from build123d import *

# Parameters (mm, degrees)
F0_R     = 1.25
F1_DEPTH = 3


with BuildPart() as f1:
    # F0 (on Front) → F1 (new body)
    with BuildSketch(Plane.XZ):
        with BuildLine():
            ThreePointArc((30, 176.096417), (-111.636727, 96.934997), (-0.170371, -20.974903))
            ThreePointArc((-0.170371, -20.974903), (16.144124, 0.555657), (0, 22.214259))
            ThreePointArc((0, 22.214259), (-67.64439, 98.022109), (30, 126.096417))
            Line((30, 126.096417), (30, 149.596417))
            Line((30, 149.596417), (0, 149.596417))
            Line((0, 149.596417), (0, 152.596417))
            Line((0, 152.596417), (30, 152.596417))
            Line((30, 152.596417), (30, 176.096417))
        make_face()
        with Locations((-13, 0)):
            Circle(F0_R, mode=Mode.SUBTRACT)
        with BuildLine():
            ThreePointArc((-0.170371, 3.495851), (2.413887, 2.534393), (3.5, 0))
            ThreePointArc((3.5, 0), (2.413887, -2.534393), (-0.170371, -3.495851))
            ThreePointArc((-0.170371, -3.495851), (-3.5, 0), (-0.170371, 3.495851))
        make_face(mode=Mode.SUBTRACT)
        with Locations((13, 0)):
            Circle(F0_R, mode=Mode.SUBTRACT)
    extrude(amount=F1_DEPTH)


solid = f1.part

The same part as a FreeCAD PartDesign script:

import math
import FreeCAD as App
import Part
import Sketcher
from FreeCAD import Vector
Q = App.Units.Quantity

doc = App.newDocument("Part")
body = doc.addObject("PartDesign::Body", "Body")

# Sketch on XZ plane
sketch1 = doc.addObject("Sketcher::SketchObject", "Sketch")
body.addObject(sketch1)
sketch1.AttachmentSupport = (doc.XZ_Plane, [""])
sketch1.MapMode = "FlatFace"
sketch1.addGeometry([
    Part.ArcOfCircle(Part.Circle(Vector(-10, 81.4, 0), Vector(0, 0, 1), 102.8), math.radians(67), math.radians(275)),  # 0
    Part.ArcOfCircle(Part.Circle(Vector(-6.3, 0.6, 0), Vector(0, 0, 1), 22.5), math.radians(-74), math.radians(74)),  # 1
    Part.ArcOfCircle(Part.Circle(Vector(-10, 81.4, 0), Vector(0, 0, 1), 60), math.radians(48), math.radians(280)),  # 2
    Part.LineSegment(Vector(30, 126.1, 0), Vector(30, 149.6, 0)),  # 3
    Part.LineSegment(Vector(30, 149.6, 0), Vector(0, 149.6, 0)),  # 4
    Part.LineSegment(Vector(0, 149.6, 0), Vector(0, 152.6, 0)),  # 5
    Part.LineSegment(Vector(0, 152.6, 0), Vector(30, 152.6, 0)),  # 6
    Part.LineSegment(Vector(30, 152.6, 0), Vector(30, 176.1, 0)),  # 7
    Part.Circle(Vector(-13, 0, 0), Vector(0, 0, 1), 1.2),  # 8
    Part.ArcOfCircle(Part.Circle(Vector(0, 0, 0), Vector(0, 0, 1), 3.5), math.radians(93), math.radians(267)),  # 9
    Part.ArcOfCircle(Part.Circle(Vector(0, 0, 0), Vector(0, 0, 1), 3.5), math.radians(0), math.radians(93)),  # 10
    Part.ArcOfCircle(Part.Circle(Vector(0, 0, 0), Vector(0, 0, 1), 3.5), math.radians(-93), math.radians(0)),  # 11
    Part.Circle(Vector(13, 0, 0), Vector(0, 0, 1), 1.2),  # 12
], False)
sketch1.addConstraint([
    Sketcher.Constraint("Coincident", 0, 2, 1, 1),
    Sketcher.Constraint("Coincident", 1, 2, 2, 2),
    Sketcher.Constraint("Coincident", 2, 1, 3, 1),
    Sketcher.Constraint("Coincident", 3, 2, 4, 1),
    Sketcher.Constraint("Coincident", 4, 2, 5, 1),
    Sketcher.Constraint("Coincident", 5, 2, 6, 1),
    Sketcher.Constraint("Coincident", 6, 2, 7, 1),
    Sketcher.Constraint("Coincident", 7, 2, 0, 1),
    Sketcher.Constraint("Tangent", 9, 1, 10, 2),
    Sketcher.Constraint("Tangent", 10, 1, 11, 2),
    Sketcher.Constraint("Tangent", 11, 1, 9, 2),
    Sketcher.Constraint("Vertical", 3),
    Sketcher.Constraint("Horizontal", 4),
    Sketcher.Constraint("Vertical", 5),
    Sketcher.Constraint("Horizontal", 6),
    Sketcher.Constraint("Vertical", 7),
    Sketcher.Constraint("Coincident", 9, 3, -1, 1),
    Sketcher.Constraint("Coincident", 2, 3, 0, 3),
    Sketcher.Constraint("Equal", 8, 12),
    Sketcher.Constraint("Symmetric", 8, 3, 12, 3, -1, 1),
    Sketcher.Constraint("PointOnObject", 8, 3, -1),
    Sketcher.Constraint("PointOnObject", 1, 2, -2),
    Sketcher.Constraint("PointOnObject", 4, 2, -2),
    Sketcher.Constraint("PointOnObject", 10, 1, -1),
    Sketcher.Constraint("Vertical", 3, 2, 6, 2),
    Sketcher.Constraint("Vertical", 0, 2, 9, 1),
    Sketcher.Constraint("Vertical", 9, 1, 11, 1),
    Sketcher.Constraint("Equal", 3, 7),
    Sketcher.Constraint("Radius", 2, Q("60 mm")),
    Sketcher.Constraint("Diameter", 8, Q("2.5 mm")),
    Sketcher.Constraint("Radius", 9, Q("3.5 mm")),
    Sketcher.Constraint("DistanceX", 4, 2, 4, 1, Q("30 mm")),
    Sketcher.Constraint("DistanceY", 5, 1, 5, 2, Q("3 mm")),
    Sketcher.Constraint("DistanceY", 3, 1, 3, 2, Q("23.5 mm")),
    Sketcher.Constraint("DistanceX", 0, 3, -1, 1, Q("10 mm")),
    Sketcher.Constraint("DistanceX", 8, 3, -1, 1, Q("13 mm")),
    Sketcher.Constraint("Radius", 1, Q("22.481612 mm")),
    Sketcher.Constraint("DistanceY", 11, 1, 9, 1, Q("6.991702 mm")),
    Sketcher.Constraint("DistanceY", -1, 1, 1, 3, Q("0.644341 mm")),
])
pad1 = doc.addObject("PartDesign::Pad", "Pad")
body.addObject(pad1)
pad1.Profile = sketch1
pad1.Length = 3

doc.recompute()
